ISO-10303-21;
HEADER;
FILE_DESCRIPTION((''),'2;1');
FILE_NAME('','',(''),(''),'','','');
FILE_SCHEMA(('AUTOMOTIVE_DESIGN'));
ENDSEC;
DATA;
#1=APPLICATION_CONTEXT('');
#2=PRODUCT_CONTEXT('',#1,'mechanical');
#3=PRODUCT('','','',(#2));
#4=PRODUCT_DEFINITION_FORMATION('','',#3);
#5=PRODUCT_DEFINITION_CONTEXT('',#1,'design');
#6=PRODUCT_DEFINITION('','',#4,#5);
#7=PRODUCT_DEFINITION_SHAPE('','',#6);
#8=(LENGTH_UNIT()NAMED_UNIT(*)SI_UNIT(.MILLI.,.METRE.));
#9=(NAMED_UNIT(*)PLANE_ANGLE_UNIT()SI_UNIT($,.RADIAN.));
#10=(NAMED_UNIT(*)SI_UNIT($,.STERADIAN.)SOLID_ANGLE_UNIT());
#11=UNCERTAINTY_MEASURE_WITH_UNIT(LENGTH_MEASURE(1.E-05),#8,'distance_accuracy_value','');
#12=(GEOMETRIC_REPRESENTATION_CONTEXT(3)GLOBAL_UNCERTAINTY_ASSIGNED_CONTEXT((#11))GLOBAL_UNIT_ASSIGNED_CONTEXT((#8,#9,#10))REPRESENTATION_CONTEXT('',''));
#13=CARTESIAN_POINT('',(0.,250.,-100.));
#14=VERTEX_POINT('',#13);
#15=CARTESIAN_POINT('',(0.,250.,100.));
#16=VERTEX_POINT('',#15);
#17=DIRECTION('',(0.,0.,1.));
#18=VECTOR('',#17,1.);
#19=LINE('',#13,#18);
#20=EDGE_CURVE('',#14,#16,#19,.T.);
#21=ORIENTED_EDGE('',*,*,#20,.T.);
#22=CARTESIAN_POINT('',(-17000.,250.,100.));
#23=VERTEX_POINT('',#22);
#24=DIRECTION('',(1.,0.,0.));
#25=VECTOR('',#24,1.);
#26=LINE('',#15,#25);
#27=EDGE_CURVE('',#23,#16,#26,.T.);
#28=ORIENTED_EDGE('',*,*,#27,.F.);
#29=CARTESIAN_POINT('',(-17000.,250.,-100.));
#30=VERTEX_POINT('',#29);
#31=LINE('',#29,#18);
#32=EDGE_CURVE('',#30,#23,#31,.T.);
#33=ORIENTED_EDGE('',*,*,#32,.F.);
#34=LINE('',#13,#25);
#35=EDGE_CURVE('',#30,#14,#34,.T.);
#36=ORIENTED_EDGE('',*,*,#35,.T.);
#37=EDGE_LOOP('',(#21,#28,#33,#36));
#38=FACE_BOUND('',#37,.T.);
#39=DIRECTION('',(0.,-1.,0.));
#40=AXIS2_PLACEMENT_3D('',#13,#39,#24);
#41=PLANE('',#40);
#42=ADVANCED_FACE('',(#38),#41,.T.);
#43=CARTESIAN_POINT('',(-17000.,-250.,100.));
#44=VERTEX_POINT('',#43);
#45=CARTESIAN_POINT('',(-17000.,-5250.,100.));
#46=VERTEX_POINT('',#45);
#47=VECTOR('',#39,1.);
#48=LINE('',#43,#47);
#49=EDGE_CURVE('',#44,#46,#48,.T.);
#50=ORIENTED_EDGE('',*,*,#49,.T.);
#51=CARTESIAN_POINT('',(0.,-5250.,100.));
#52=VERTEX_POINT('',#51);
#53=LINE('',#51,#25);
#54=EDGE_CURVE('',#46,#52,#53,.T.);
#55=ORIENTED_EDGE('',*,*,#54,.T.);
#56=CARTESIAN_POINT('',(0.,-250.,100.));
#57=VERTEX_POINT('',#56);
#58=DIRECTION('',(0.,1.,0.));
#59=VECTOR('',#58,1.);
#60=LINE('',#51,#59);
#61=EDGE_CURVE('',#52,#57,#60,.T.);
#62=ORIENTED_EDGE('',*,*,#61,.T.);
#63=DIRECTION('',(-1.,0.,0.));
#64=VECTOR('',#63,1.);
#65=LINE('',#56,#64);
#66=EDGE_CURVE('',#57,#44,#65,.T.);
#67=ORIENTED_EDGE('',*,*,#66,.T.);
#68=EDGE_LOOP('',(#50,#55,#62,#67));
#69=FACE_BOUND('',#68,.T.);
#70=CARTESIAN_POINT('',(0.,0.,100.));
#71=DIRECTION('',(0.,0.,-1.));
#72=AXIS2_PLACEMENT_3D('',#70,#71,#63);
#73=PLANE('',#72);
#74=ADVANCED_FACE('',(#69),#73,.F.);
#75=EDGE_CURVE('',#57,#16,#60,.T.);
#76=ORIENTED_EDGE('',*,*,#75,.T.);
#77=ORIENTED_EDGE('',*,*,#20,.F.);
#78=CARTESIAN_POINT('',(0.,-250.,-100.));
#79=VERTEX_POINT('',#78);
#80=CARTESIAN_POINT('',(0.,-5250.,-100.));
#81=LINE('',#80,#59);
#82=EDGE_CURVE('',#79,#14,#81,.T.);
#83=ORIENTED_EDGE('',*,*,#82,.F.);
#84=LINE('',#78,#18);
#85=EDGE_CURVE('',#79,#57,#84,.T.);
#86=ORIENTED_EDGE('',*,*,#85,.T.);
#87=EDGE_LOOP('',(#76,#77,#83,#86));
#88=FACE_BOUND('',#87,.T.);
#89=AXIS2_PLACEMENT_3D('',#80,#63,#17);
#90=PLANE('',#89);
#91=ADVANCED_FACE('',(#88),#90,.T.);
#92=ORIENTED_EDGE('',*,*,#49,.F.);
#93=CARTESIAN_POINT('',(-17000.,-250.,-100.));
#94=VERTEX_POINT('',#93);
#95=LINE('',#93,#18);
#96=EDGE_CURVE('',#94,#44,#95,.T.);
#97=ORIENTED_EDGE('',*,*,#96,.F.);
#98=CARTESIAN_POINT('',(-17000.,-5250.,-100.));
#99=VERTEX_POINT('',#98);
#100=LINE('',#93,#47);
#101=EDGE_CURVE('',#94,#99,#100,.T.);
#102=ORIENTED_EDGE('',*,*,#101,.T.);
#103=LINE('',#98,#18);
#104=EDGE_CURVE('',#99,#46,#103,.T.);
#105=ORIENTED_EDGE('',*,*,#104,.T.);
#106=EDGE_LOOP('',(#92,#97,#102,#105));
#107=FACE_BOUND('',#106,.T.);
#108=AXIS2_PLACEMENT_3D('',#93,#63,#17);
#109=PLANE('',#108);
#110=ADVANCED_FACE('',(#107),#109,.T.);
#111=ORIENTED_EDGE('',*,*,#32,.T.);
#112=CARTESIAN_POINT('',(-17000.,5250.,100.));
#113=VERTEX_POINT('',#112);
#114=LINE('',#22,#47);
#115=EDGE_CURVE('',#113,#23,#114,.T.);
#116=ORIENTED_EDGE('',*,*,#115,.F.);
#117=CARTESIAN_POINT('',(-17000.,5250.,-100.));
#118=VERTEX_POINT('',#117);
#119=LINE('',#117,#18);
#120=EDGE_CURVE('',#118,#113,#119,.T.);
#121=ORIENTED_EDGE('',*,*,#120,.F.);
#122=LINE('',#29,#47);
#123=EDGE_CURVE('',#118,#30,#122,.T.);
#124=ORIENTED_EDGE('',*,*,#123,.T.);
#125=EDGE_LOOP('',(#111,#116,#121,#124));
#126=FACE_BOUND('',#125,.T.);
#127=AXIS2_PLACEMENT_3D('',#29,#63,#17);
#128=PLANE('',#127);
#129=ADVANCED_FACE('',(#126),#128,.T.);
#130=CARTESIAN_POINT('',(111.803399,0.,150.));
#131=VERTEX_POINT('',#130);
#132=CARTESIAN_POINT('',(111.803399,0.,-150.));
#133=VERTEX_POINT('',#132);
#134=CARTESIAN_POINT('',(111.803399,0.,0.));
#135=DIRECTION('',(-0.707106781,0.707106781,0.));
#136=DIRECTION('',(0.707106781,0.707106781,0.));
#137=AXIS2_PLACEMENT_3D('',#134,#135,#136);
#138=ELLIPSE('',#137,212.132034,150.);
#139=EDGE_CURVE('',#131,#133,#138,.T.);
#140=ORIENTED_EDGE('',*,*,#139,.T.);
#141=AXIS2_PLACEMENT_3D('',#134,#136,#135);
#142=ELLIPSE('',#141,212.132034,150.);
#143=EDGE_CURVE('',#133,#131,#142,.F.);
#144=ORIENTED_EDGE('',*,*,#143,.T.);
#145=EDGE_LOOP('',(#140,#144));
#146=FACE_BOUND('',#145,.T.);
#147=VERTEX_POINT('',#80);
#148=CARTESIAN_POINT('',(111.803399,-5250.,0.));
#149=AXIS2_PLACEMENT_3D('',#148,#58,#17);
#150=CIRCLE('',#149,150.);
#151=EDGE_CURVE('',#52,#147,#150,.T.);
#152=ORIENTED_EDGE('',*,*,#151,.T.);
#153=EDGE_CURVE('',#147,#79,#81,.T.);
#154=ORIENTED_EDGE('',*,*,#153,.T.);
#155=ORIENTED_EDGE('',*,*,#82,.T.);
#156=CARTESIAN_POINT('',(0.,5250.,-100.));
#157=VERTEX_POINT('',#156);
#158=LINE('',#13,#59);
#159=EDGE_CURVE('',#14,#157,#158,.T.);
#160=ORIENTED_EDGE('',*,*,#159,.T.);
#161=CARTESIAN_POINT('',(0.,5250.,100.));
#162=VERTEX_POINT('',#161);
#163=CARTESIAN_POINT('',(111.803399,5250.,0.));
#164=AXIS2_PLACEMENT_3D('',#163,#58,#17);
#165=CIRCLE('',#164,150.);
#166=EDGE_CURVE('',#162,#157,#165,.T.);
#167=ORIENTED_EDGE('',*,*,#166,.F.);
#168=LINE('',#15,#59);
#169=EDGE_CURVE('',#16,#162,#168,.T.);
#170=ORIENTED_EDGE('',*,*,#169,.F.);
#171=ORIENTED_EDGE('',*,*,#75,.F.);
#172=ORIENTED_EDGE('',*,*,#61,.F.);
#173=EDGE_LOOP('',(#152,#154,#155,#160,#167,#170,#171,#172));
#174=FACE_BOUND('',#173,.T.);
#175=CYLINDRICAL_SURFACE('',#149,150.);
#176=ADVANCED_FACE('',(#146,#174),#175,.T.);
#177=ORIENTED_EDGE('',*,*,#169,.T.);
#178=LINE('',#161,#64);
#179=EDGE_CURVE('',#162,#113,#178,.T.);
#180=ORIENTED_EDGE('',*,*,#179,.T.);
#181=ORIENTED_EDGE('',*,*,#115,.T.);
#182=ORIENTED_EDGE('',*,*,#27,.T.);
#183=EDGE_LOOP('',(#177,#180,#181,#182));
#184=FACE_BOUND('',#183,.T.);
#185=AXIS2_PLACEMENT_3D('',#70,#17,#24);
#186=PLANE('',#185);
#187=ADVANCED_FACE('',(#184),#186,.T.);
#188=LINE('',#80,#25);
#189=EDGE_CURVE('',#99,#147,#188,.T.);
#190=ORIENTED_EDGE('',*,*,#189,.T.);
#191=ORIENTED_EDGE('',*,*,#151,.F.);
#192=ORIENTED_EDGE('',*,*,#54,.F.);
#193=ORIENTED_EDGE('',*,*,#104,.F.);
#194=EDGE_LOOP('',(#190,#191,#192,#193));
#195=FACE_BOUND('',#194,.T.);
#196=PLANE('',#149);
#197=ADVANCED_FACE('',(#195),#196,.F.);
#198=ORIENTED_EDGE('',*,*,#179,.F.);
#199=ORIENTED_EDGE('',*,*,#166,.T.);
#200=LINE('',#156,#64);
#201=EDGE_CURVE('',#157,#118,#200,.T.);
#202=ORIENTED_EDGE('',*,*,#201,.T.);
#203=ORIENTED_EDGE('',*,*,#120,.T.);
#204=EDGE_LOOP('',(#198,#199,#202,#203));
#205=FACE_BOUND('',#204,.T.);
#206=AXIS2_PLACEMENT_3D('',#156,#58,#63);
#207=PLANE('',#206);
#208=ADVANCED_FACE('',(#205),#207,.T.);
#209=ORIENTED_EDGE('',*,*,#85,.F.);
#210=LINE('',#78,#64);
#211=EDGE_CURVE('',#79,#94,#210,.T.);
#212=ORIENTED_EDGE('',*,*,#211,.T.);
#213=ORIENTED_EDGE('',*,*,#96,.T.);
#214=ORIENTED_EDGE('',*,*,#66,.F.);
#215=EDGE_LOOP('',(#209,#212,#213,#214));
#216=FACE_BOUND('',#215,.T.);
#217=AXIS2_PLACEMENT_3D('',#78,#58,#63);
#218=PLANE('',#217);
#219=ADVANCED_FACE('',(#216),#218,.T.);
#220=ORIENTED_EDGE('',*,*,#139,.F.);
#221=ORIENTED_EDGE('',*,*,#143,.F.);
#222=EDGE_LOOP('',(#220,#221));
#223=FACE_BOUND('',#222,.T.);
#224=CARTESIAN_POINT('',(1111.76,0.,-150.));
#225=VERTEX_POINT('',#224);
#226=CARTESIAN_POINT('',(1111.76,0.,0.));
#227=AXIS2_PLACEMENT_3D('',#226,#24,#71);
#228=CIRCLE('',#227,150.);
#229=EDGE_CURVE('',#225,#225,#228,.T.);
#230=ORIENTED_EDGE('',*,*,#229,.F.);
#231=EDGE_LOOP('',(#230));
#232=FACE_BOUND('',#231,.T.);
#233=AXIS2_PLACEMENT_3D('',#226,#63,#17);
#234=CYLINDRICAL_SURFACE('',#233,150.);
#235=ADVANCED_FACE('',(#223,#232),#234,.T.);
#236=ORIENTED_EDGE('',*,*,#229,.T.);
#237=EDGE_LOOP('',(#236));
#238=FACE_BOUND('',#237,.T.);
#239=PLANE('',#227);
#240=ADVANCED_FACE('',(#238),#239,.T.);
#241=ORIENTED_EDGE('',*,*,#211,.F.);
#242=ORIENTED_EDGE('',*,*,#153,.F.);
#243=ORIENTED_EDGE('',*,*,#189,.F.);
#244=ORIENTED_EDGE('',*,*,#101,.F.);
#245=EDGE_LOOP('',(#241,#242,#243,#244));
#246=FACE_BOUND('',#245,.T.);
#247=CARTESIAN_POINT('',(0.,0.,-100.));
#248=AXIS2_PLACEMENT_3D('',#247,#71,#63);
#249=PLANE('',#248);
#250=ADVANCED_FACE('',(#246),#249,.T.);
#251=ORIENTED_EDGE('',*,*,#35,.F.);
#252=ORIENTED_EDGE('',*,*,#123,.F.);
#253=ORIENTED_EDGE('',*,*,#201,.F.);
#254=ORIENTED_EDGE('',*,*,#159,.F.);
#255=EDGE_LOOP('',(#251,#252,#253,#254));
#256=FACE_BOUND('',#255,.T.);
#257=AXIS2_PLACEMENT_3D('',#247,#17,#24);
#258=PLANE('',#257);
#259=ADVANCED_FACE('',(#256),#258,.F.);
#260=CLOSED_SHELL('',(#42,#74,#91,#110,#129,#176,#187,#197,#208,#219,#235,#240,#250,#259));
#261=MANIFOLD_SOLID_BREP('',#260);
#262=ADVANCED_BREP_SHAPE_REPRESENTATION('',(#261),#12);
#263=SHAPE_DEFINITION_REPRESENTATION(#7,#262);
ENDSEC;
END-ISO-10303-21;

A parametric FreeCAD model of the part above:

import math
import FreeCAD as App
import Part
import Sketcher

doc = App.newDocument("Part")
body = doc.addObject("PartDesign::Body", "Body")

# Sketch on XY plane
sketch1 = doc.addObject("Sketcher::SketchObject", "Sketch")
body.addObject(sketch1)
sketch1.AttachmentSupport = (doc.XY_Plane, [""])
sketch1.MapMode = "FlatFace"
sketch1.addGeometry([
    Part.LineSegment(App.Vector(-17000, -250, 0), App.Vector(-17000, -5250, 0)),
    Part.LineSegment(App.Vector(-17000, -5250, 0), App.Vector(0, -5250, 0)),
    Part.LineSegment(App.Vector(0, -5250, 0), App.Vector(0, -250, 0)),
    Part.LineSegment(App.Vector(0, -250, 0), App.Vector(-17000, -250, 0)),
], False)
sketch1.addConstraint([
    Sketcher.Constraint("Coincident", 0, 2, 1, 1),
    Sketcher.Constraint("Coincident", 1, 2, 2, 1),
    Sketcher.Constraint("Coincident", 2, 2, 3, 1),
    Sketcher.Constraint("Coincident", 3, 2, 0, 1),
    Sketcher.Constraint("Vertical", 0),
    Sketcher.Constraint("Horizontal", 1),
    Sketcher.Constraint("Vertical", 2),
    Sketcher.Constraint("Horizontal", 3),
    Sketcher.Constraint("PointOnObject", 1, 2, -2),
    Sketcher.Constraint("DistanceX", 1, 1, 1, 2, 17000.0),
    Sketcher.Constraint("DistanceY", 0, 2, 0, 1, 5000.0),
    Sketcher.Constraint("DistanceY", 0, 2, -1, 1, 5250.0),
])
pad1 = doc.addObject("PartDesign::Pad", "Pad")
body.addObject(pad1)
pad1.Profile = sketch1
pad1.Type = "TwoLengths"
pad1.Length = 100
pad1.Length2 = 100
body2 = doc.addObject("PartDesign::Body", "Body001")

# Sketch on XY plane
sketch2 = doc.addObject("Sketcher::SketchObject", "Sketch001")
body2.addObject(sketch2)
sketch2.AttachmentSupport = (doc.getObject("XY_Plane001"), [""])
sketch2.MapMode = "FlatFace"
sketch2.addGeometry([
    Part.LineSegment(App.Vector(-17000, 5250, 0), App.Vector(-17000, 250, 0)),
    Part.LineSegment(App.Vector(-17000, 250, 0), App.Vector(0, 250, 0)),
    Part.LineSegment(App.Vector(0, 250, 0), App.Vector(0, 5250, 0)),
    Part.LineSegment(App.Vector(0, 5250, 0), App.Vector(-17000, 5250, 0)),
], False)
sketch2.addConstraint([
    Sketcher.Constraint("Coincident", 0, 2, 1, 1),
    Sketcher.Constraint("Coincident", 1, 2, 2, 1),
    Sketcher.Constraint("Coincident", 2, 2, 3, 1),
    Sketcher.Constraint("Coincident", 3, 2, 0, 1),
    Sketcher.Constraint("Vertical", 0),
    Sketcher.Constraint("Horizontal", 1),
    Sketcher.Constraint("Vertical", 2),
    Sketcher.Constraint("Horizontal", 3),
    Sketcher.Constraint("PointOnObject", 1, 2, -2),
    Sketcher.Constraint("DistanceX", 1, 1, 1, 2, 17000.0),
    Sketcher.Constraint("DistanceY", 0, 2, 0, 1, 5000.0),
    Sketcher.Constraint("DistanceY", -1, 1, 0, 2, 250.0),
])
pad2 = doc.addObject("PartDesign::Pad", "Pad001")
body2.addObject(pad2)
pad2.Profile = sketch2
pad2.Type = "TwoLengths"
pad2.Length = 100
pad2.Length2 = 100
body.AllowCompound = True
doc.recompute()

boolean = doc.addObject("PartDesign::Boolean", "Boolean")
body.addObject(boolean)
boolean.Type = "Fuse"
boolean.addObjects([body2])

# Sketch on XZ plane
sketch3 = doc.addObject("Sketcher::SketchObject", "Sketch002")
body.addObject(sketch3)
sketch3.AttachmentSupport = (doc.XZ_Plane, [""])
sketch3.MapMode = "FlatFace"
sketch3.addGeometry([
    Part.LineSegment(App.Vector(0, -100, 0), App.Vector(0, 100, 0)),
    Part.ArcOfCircle(Part.Circle(App.Vector(112, 0, 0), App.Vector(0, 0, 1), 150), math.radians(-138), math.radians(138)),
], False)
sketch3.addConstraint([
    Sketcher.Constraint("Coincident", 0, 1, 1, 1),
    Sketcher.Constraint("Coincident", 1, 2, 0, 2),
    Sketcher.Constraint("Vertical", 0),
    Sketcher.Constraint("Symmetric", 0, 1, 1, 2, -1, 1),
    Sketcher.Constraint("Radius", 1, 150.0),
    Sketcher.Constraint("DistanceY", 0, 1, 0, 2, 200.0),
])
pad3 = doc.addObject("PartDesign::Pad", "Pad002")
body.addObject(pad3)
pad3.Profile = sketch3
pad3.Type = "TwoLengths"
pad3.Length = 5250
pad3.Length2 = 5250
pad3.Reversed = True

# Sketch on YZ plane
sketch4 = doc.addObject("Sketcher::SketchObject", "Sketch003")
body.addObject(sketch4)
sketch4.AttachmentSupport = (doc.YZ_Plane, [""])
sketch4.MapMode = "FlatFace"
sketch4.AttachmentOffset = App.Placement(App.Vector(0, 0, 111.76), App.Rotation())
sketch4.addGeometry(Part.Circle(App.Vector(0, 0, 0), App.Vector(0, 0, 1), 150), False)
sketch4.addConstraint([
    Sketcher.Constraint("Coincident", 0, 3, -1, 1),
    Sketcher.Constraint("Diameter", 0, 300.0),
])
pad4 = doc.addObject("PartDesign::Pad", "Pad003")
body.addObject(pad4)
pad4.Profile = sketch4
pad4.Length = 1000

doc.recompute()
